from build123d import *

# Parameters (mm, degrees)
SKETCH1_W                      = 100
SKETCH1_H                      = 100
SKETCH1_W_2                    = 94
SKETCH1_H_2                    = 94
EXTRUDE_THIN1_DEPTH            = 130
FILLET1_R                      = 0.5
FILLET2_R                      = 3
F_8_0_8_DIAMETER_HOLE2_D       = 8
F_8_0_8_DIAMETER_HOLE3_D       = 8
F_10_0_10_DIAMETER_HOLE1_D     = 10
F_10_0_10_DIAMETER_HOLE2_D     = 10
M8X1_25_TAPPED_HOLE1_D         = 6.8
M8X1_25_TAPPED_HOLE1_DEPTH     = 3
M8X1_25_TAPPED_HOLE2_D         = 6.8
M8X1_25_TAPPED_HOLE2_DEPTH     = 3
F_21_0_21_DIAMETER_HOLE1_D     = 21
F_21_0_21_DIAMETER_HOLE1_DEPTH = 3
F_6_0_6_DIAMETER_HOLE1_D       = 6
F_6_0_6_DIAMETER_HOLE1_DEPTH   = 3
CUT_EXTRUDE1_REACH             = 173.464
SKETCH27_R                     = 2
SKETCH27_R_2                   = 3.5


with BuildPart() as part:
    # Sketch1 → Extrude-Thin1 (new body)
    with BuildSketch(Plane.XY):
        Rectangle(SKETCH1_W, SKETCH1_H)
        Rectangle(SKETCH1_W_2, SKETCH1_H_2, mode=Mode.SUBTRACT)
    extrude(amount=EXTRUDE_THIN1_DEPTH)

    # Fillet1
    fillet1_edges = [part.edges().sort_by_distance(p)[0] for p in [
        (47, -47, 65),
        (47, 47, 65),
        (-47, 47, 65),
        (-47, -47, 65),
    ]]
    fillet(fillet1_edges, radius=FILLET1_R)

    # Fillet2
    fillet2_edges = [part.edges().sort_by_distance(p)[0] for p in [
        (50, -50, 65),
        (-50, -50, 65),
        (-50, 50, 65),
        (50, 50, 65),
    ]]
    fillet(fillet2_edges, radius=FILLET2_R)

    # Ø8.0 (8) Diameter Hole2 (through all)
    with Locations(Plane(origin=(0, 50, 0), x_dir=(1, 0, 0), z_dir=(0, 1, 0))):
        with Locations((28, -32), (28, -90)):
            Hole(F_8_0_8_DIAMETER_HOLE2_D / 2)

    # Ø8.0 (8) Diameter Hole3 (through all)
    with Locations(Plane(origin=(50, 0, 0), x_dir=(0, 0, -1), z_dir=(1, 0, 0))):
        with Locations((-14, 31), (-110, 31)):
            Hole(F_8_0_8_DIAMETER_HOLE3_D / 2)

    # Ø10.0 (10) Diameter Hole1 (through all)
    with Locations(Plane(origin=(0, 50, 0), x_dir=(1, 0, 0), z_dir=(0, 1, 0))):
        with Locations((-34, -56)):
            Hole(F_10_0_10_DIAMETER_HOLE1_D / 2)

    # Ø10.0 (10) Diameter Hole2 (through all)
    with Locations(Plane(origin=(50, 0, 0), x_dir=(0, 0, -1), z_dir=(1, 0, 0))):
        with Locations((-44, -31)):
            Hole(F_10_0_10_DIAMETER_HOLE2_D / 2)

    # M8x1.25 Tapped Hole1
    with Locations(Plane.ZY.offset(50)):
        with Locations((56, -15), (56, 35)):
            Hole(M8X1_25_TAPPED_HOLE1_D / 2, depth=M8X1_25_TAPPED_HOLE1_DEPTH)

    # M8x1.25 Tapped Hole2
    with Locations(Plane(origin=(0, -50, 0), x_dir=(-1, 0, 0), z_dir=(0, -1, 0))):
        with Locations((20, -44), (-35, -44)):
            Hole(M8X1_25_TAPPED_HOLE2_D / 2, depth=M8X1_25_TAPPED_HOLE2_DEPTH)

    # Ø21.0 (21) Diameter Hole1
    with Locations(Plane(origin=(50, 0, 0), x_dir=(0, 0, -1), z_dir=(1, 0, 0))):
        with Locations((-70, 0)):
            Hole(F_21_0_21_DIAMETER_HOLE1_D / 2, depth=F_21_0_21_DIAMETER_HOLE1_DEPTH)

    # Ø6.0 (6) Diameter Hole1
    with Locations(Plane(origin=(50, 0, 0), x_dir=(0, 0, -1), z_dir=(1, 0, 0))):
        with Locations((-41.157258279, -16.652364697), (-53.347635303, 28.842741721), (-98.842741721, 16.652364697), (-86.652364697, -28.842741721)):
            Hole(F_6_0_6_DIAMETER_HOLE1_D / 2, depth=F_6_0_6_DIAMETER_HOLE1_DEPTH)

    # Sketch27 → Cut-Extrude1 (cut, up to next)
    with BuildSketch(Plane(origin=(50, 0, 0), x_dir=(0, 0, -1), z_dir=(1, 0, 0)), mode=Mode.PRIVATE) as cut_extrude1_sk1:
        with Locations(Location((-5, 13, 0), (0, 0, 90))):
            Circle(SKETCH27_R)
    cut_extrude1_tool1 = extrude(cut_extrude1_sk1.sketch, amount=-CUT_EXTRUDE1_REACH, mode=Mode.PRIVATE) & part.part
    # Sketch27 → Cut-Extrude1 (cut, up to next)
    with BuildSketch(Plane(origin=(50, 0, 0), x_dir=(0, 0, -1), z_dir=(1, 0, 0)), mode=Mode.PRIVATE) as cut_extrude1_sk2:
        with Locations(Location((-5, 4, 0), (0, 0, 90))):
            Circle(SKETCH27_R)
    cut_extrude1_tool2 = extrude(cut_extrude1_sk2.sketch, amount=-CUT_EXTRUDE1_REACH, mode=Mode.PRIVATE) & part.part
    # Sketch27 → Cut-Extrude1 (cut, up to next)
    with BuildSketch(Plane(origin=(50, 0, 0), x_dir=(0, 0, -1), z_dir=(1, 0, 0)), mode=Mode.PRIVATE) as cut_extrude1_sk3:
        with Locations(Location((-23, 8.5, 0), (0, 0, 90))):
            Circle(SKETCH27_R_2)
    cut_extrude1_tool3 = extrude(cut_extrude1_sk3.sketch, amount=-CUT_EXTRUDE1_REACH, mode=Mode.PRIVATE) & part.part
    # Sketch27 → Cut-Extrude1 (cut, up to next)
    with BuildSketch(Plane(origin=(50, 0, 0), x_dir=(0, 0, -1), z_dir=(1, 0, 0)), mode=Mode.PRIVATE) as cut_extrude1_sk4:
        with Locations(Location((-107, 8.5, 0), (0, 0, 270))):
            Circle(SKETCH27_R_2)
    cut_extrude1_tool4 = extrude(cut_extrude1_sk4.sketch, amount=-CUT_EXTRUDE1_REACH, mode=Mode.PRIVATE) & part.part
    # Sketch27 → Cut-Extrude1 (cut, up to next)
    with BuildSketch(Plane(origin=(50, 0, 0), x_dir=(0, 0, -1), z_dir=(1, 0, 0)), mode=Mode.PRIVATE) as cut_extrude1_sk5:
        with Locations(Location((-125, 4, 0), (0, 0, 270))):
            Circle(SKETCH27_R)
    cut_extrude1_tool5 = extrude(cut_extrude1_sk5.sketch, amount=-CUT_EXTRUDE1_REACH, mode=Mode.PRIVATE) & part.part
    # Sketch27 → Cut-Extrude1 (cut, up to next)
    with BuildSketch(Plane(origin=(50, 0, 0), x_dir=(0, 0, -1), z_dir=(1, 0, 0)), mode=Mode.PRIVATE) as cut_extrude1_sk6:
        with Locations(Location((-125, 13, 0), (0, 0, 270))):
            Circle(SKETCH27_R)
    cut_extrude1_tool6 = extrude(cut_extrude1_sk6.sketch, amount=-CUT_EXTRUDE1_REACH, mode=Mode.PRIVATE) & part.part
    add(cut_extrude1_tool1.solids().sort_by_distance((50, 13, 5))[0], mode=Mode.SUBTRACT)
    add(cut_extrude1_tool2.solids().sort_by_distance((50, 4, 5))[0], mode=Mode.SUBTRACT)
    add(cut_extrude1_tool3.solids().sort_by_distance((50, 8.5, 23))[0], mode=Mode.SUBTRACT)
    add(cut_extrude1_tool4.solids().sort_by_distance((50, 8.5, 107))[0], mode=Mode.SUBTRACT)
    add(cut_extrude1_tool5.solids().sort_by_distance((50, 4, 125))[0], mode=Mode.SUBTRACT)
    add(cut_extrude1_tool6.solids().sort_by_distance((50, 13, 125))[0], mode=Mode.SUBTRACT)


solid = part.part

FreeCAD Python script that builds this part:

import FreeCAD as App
import Part
import Sketcher
from FreeCAD import Vector
Q = App.Units.Quantity


def edges_at(feature, points):
    """Names of the edges that pass closest to the given points."""
    edges = feature.Shape.Edges
    near = lambda p: min(range(len(edges)), key=lambda i: edges[i].distToShape(Part.Vertex(*p))[0])
    return sorted({f"Edge{near(p) + 1}" for p in points})

doc = App.newDocument("Part")
body = doc.addObject("PartDesign::Body", "Body")

# Sketch on XY plane
sketch1 = body.newObject("Sketcher::SketchObject", "Sketch")
sketch1.AttachmentSupport = (doc.getObject("XY_Plane"), [""])
sketch1.MapMode = "FlatFace"
sketch1.addGeometry([
    Part.LineSegment(Vector(-50, 50, 0), Vector(-50, -50, 0)),  # 0
    Part.LineSegment(Vector(-50, -50, 0), Vector(50, -50, 0)),  # 1
    Part.LineSegment(Vector(50, -50, 0), Vector(50, 50, 0)),  # 2
    Part.LineSegment(Vector(50, 50, 0), Vector(-50, 50, 0)),  # 3
    Part.LineSegment(Vector(47, -47, 0), Vector(-47, -47, 0)),  # 4
    Part.LineSegment(Vector(-47, -47, 0), Vector(-47, 47, 0)),  # 5
    Part.LineSegment(Vector(-47, 47, 0), Vector(47, 47, 0)),  # 6
    Part.LineSegment(Vector(47, 47, 0), Vector(47, -47, 0)),  # 7
], False)
sketch1.addConstraint([
    Sketcher.Constraint("Coincident", 0, 2, 1, 1),
    Sketcher.Constraint("Coincident", 1, 2, 2, 1),
    Sketcher.Constraint("Coincident", 2, 2, 3, 1),
    Sketcher.Constraint("Coincident", 3, 2, 0, 1),
    Sketcher.Constraint("Coincident", 4, 2, 5, 1),
    Sketcher.Constraint("Coincident", 5, 2, 6, 1),
    Sketcher.Constraint("Coincident", 6, 2, 7, 1),
    Sketcher.Constraint("Coincident", 7, 2, 4, 1),
    Sketcher.Constraint("Vertical", 0),
    Sketcher.Constraint("Horizontal", 1),
    Sketcher.Constraint("Vertical", 2),
    Sketcher.Constraint("Horizontal", 3),
    Sketcher.Constraint("Horizontal", 4),
    Sketcher.Constraint("Vertical", 5),
    Sketcher.Constraint("Horizontal", 6),
    Sketcher.Constraint("Vertical", 7),
    Sketcher.Constraint("Symmetric", 0, 2, 2, 2, -1, 1),
    Sketcher.Constraint("Symmetric", 4, 2, 6, 2, -1, 1),
    Sketcher.Constraint("Equal", 3, 0),
    Sketcher.Constraint("Equal", 6, 5),
    Sketcher.Constraint("DistanceX", 1, 1, 1, 2, Q("100 mm")),
    Sketcher.Constraint("DistanceX", 4, 2, 4, 1, Q("94 mm")),
])
pad1 = body.newObject("PartDesign::Pad", "Pad")
pad1.Profile = sketch1
pad1.Length = 130
doc.recompute()

fillet = body.newObject("PartDesign::Fillet", "Fillet")
fillet.Base = (pad1, edges_at(pad1, [
    (47, -47, 65),
    (47, 47, 65),
    (-47, 47, 65),
    (-47, -47, 65),
]))
fillet.Radius = 0.5
doc.recompute()

fillet2 = body.newObject("PartDesign::Fillet", "Fillet001")
fillet2.Base = (fillet, edges_at(fillet, [
    (50, -50, 65),
    (-50, -50, 65),
    (-50, 50, 65),
    (50, 50, 65),
]))
fillet2.Radius = 3

# Sketch on XZ plane
sketch2 = body.newObject("Sketcher::SketchObject", "Sketch001")
sketch2.AttachmentSupport = (doc.getObject("XZ_Plane"), [""])
sketch2.MapMode = "FlatFace"
sketch2.AttachmentOffset = App.Placement(Vector(0, 0, -50), App.Rotation())
sketch2.addGeometry([
    Part.Circle(Vector(28, 32, 0), Vector(0, 0, 1), 4),
    Part.Circle(Vector(28, 90, 0), Vector(0, 0, 1), 4),
], False)
sketch2.addConstraint([
    Sketcher.Constraint("Equal", 0, 1),
    Sketcher.Constraint("Vertical", 0, 3, 1, 3),
    Sketcher.Constraint("Diameter", 0, Q("8 mm")),
    Sketcher.Constraint("DistanceX", -1, 1, 0, 3, Q("28 mm")),
    Sketcher.Constraint("DistanceY", -1, 1, 0, 3, Q("32 mm")),
    Sketcher.Constraint("DistanceY", -1, 1, 1, 3, Q("90 mm")),
])
doc.recompute()
hole = body.newObject("PartDesign::Hole", "Hole")
hole.Profile = sketch2
hole.ThreadType = "None"
hole.Diameter = 8
hole.DepthType = "ThroughAll"
hole.Reversed = True

# Sketch on YZ plane
sketch3 = body.newObject("Sketcher::SketchObject", "Sketch002")
sketch3.AttachmentSupport = (doc.getObject("YZ_Plane"), [""])
sketch3.MapMode = "FlatFace"
sketch3.AttachmentOffset = App.Placement(Vector(0, 0, 50), App.Rotation())
sketch3.addGeometry([
    Part.Circle(Vector(31, 14, 0), Vector(0, 0, 1), 4),
    Part.Circle(Vector(31, 110, 0), Vector(0, 0, 1), 4),
], False)
sketch3.addConstraint([
    Sketcher.Constraint("Equal", 0, 1),
    Sketcher.Constraint("Vertical", 0, 3, 1, 3),
    Sketcher.Constraint("Diameter", 0, Q("8 mm")),
    Sketcher.Constraint("DistanceX", -1, 1, 0, 3, Q("31 mm")),
    Sketcher.Constraint("DistanceY", -1, 1, 0, 3, Q("14 mm")),
    Sketcher.Constraint("DistanceY", -1, 1, 1, 3, Q("110 mm")),
])
doc.recompute()
hole2 = body.newObject("PartDesign::Hole", "Hole001")
hole2.Profile = sketch3
hole2.ThreadType = "None"
hole2.Diameter = 8
hole2.DepthType = "ThroughAll"

# Sketch on XZ plane
sketch4 = body.newObject("Sketcher::SketchObject", "Sketch003")
sketch4.AttachmentSupport = (doc.getObject("XZ_Plane"), [""])
sketch4.MapMode = "FlatFace"
sketch4.AttachmentOffset = App.Placement(Vector(0, 0, -50), App.Rotation())
sketch4.addGeometry(Part.Circle(Vector(-34, 56, 0), Vector(0, 0, 1), 5), False)
sketch4.addConstraint([
    Sketcher.Constraint("Diameter", 0, Q("10 mm")),
    Sketcher.Constraint("DistanceX", 0, 3, -1, 1, Q("34 mm")),
    Sketcher.Constraint("DistanceY", -1, 1, 0, 3, Q("56 mm")),
])
doc.recompute()
hole3 = body.newObject("PartDesign::Hole", "Hole002")
hole3.Profile = sketch4
hole3.ThreadType = "None"
hole3.Diameter = 10
hole3.DepthType = "ThroughAll"
hole3.Reversed = True

# Sketch on YZ plane
sketch5 = body.newObject("Sketcher::SketchObject", "Sketch004")
sketch5.AttachmentSupport = (doc.getObject("YZ_Plane"), [""])
sketch5.MapMode = "FlatFace"
sketch5.AttachmentOffset = App.Placement(Vector(0, 0, 50), App.Rotation())
sketch5.addGeometry(Part.Circle(Vector(-31, 44, 0), Vector(0, 0, 1), 5), False)
sketch5.addConstraint([
    Sketcher.Constraint("Diameter", 0, Q("10 mm")),
    Sketcher.Constraint("DistanceX", 0, 3, -1, 1, Q("31 mm")),
    Sketcher.Constraint("DistanceY", -1, 1, 0, 3, Q("44 mm")),
])
doc.recompute()
hole4 = body.newObject("PartDesign::Hole", "Hole003")
hole4.Profile = sketch5
hole4.ThreadType = "None"
hole4.Diameter = 10
hole4.DepthType = "ThroughAll"

# Sketch on YZ plane
sketch6 = body.newObject("Sketcher::SketchObject", "Sketch005")
sketch6.AttachmentSupport = (doc.getObject("YZ_Plane"), [""])
sketch6.MapMode = "FlatFace"
sketch6.AttachmentOffset = App.Placement(Vector(0, 0, -50), App.Rotation())
sketch6.addGeometry([
    Part.Circle(Vector(-15, 56, 0), Vector(0, 0, 1), 3.4),
    Part.Circle(Vector(35, 56, 0), Vector(0, 0, 1), 3.4),
], False)
sketch6.addConstraint([
    Sketcher.Constraint("Equal", 0, 1),
    Sketcher.Constraint("Horizontal", 0, 3, 1, 3),
    Sketcher.Constraint("Diameter", 0, Q("6.8 mm")),
    Sketcher.Constraint("DistanceX", 0, 3, -1, 1, Q("15 mm")),
    Sketcher.Constraint("DistanceY", -1, 1, 0, 3, Q("56 mm")),
    Sketcher.Constraint("DistanceX", -1, 1, 1, 3, Q("35 mm")),
])
doc.recompute()
hole5 = body.newObject("PartDesign::Hole", "Hole004")
hole5.Profile = sketch6
hole5.ThreadType = "None"
hole5.Diameter = 6.8
hole5.DepthType = "Dimension"
hole5.Depth = 3
hole5.DrillPoint = "Flat"
hole5.Reversed = True

# Sketch on XZ plane
sketch7 = body.newObject("Sketcher::SketchObject", "Sketch006")
sketch7.AttachmentSupport = (doc.getObject("XZ_Plane"), [""])
sketch7.MapMode = "FlatFace"
sketch7.AttachmentOffset = App.Placement(Vector(0, 0, 50), App.Rotation())
sketch7.addGeometry([
    Part.Circle(Vector(-20, 44, 0), Vector(0, 0, 1), 3.4),
    Part.Circle(Vector(35, 44, 0), Vector(0, 0, 1), 3.4),
], False)
sketch7.addConstraint([
    Sketcher.Constraint("Equal", 0, 1),
    Sketcher.Constraint("Horizontal", 0, 3, 1, 3),
    Sketcher.Constraint("Diameter", 0, Q("6.8 mm")),
    Sketcher.Constraint("DistanceX", 0, 3, -1, 1, Q("20 mm")),
    Sketcher.Constraint("DistanceY", -1, 1, 0, 3, Q("44 mm")),
    Sketcher.Constraint("DistanceX", -1, 1, 1, 3, Q("35 mm")),
])
doc.recompute()
hole6 = body.newObject("PartDesign::Hole", "Hole005")
hole6.Profile = sketch7
hole6.ThreadType = "None"
hole6.Diameter = 6.8
hole6.DepthType = "Dimension"
hole6.Depth = 3
hole6.DrillPoint = "Flat"

# Sketch on YZ plane
sketch8 = body.newObject("Sketcher::SketchObject", "Sketch007")
sketch8.AttachmentSupport = (doc.getObject("YZ_Plane"), [""])
sketch8.MapMode = "FlatFace"
sketch8.AttachmentOffset = App.Placement(Vector(0, 0, 50), App.Rotation())
sketch8.addGeometry(Part.Circle(Vector(0, 70, 0), Vector(0, 0, 1), 10), False)
sketch8.addConstraint([
    Sketcher.Constraint("PointOnObject", 0, 3, -2),
    Sketcher.Constraint("Diameter", 0, Q("21 mm")),
    Sketcher.Constraint("DistanceY", -1, 1, 0, 3, Q("70 mm")),
])
doc.recompute()
hole7 = body.newObject("PartDesign::Hole", "Hole006")
hole7.Profile = sketch8
hole7.ThreadType = "None"
hole7.Diameter = 21
hole7.DepthType = "Dimension"
hole7.Depth = 3
hole7.DrillPoint = "Flat"

# Sketch on YZ plane
sketch9 = body.newObject("Sketcher::SketchObject", "Sketch008")
sketch9.AttachmentSupport = (doc.getObject("YZ_Plane"), [""])
sketch9.MapMode = "FlatFace"
sketch9.AttachmentOffset = App.Placement(Vector(0, 0, 50), App.Rotation())
sketch9.addGeometry([
    Part.Circle(Vector(-16.7, 41.2, 0), Vector(0, 0, 1), 3),
    Part.Circle(Vector(28.8, 53.3, 0), Vector(0, 0, 1), 3),
    Part.Circle(Vector(16.7, 98.8, 0), Vector(0, 0, 1), 3),
    Part.Circle(Vector(-28.8, 86.7, 0), Vector(0, 0, 1), 3),
], False)
sketch9.addConstraint([
    Sketcher.Constraint("Equal", 0, 1),
    Sketcher.Constraint("Equal", 1, 2),
    Sketcher.Constraint("Equal", 2, 3),
    Sketcher.Constraint("Diameter", 0, Q("6 mm")),
    Sketcher.Constraint("DistanceY", -1, 1, 0, 3, Q("41.157258 mm")),
    Sketcher.Constraint("DistanceX", -1, 1, 1, 3, Q("28.842742 mm")),
    Sketcher.Constraint("DistanceY", -1, 1, 2, 3, Q("98.842742 mm")),
    Sketcher.Constraint("DistanceX", 3, 3, -1, 1, Q("28.842742 mm")),
    Sketcher.Constraint("DistanceX", 0, 3, 2, 3, Q("33.304729 mm")),
    Sketcher.Constraint("DistanceY", 1, 3, 3, 3, Q("33.304729 mm")),
    Sketcher.Constraint("DistanceX", 0, 3, -1, 1, Q("16.652365 mm")),
    Sketcher.Constraint("DistanceY", -1, 1, 1, 3, Q("53.347635 mm")),
])
doc.recompute()
hole8 = body.newObject("PartDesign::Hole", "Hole007")
hole8.Profile = sketch9
hole8.ThreadType = "None"
hole8.Diameter = 6
hole8.DepthType = "Dimension"
hole8.Depth = 3
hole8.DrillPoint = "Flat"

# Sketch on YZ plane
sketch10 = body.newObject("Sketcher::SketchObject", "Sketch009")
sketch10.AttachmentSupport = (doc.getObject("YZ_Plane"), [""])
sketch10.MapMode = "FlatFace"
sketch10.AttachmentOffset = App.Placement(Vector(0, 0, 50), App.Rotation())
sketch10.addGeometry(Part.Circle(Vector(13, 5, 0), Vector(0, 0, 1), 2), False)
sketch10.addConstraint([
    Sketcher.Constraint("Diameter", 0, Q("4 mm")),
    Sketcher.Constraint("DistanceX", -1, 1, 0, 3, Q("13 mm")),
    Sketcher.Constraint("DistanceY", -1, 1, 0, 3, Q("5 mm")),
])
pocket1 = body.newObject("PartDesign::Pocket", "Pocket")
pocket1.Profile = sketch10
pocket1.Type = "UpToFirst"

# Sketch on YZ plane
sketch11 = body.newObject("Sketcher::SketchObject", "Sketch010")
sketch11.AttachmentSupport = (doc.getObject("YZ_Plane"), [""])
sketch11.MapMode = "FlatFace"
sketch11.AttachmentOffset = App.Placement(Vector(0, 0, 50), App.Rotation())
sketch11.addGeometry(Part.Circle(Vector(4, 5, 0), Vector(0, 0, 1), 2), False)
sketch11.addConstraint([
    Sketcher.Constraint("Diameter", 0, Q("4 mm")),
    Sketcher.Constraint("DistanceX", -1, 1, 0, 3, Q("4 mm")),
    Sketcher.Constraint("DistanceY", -1, 1, 0, 3, Q("5 mm")),
])
pocket2 = body.newObject("PartDesign::Pocket", "Pocket001")
pocket2.Profile = sketch11
pocket2.Type = "UpToFirst"

# Sketch on YZ plane
sketch12 = body.newObject("Sketcher::SketchObject", "Sketch011")
sketch12.AttachmentSupport = (doc.getObject("YZ_Plane"), [""])
sketch12.MapMode = "FlatFace"
sketch12.AttachmentOffset = App.Placement(Vector(0, 0, 50), App.Rotation())
sketch12.addGeometry(Part.Circle(Vector(8.5, 23, 0), Vector(0, 0, 1), 3.5), False)
sketch12.addConstraint([
    Sketcher.Constraint("Diameter", 0, Q("7 mm")),
    Sketcher.Constraint("DistanceY", -1, 1, 0, 3, Q("23 mm")),
    Sketcher.Constraint("DistanceX", -1, 1, 0, 3, Q("8.5 mm")),
])
pocket3 = body.newObject("PartDesign::Pocket", "Pocket002")
pocket3.Profile = sketch12
pocket3.Type = "UpToFirst"

# Sketch on YZ plane
sketch13 = body.newObject("Sketcher::SketchObject", "Sketch012")
sketch13.AttachmentSupport = (doc.getObject("YZ_Plane"), [""])
sketch13.MapMode = "FlatFace"
sketch13.AttachmentOffset = App.Placement(Vector(0, 0, 50), App.Rotation())
sketch13.addGeometry(Part.Circle(Vector(8.5, 107, 0), Vector(0, 0, 1), 3.5), False)
sketch13.addConstraint([
    Sketcher.Constraint("Diameter", 0, Q("7 mm")),
    Sketcher.Constraint("DistanceY", -1, 1, 0, 3, Q("107 mm")),
    Sketcher.Constraint("DistanceX", -1, 1, 0, 3, Q("8.5 mm")),
])
pocket4 = body.newObject("PartDesign::Pocket", "Pocket003")
pocket4.Profile = sketch13
pocket4.Type = "UpToFirst"

# Sketch on YZ plane
sketch14 = body.newObject("Sketcher::SketchObject", "Sketch013")
sketch14.AttachmentSupport = (doc.getObject("YZ_Plane"), [""])
sketch14.MapMode = "FlatFace"
sketch14.AttachmentOffset = App.Placement(Vector(0, 0, 50), App.Rotation())
sketch14.addGeometry(Part.Circle(Vector(4, 125, 0), Vector(0, 0, 1), 2), False)
sketch14.addConstraint([
    Sketcher.Constraint("Diameter", 0, Q("4 mm")),
    Sketcher.Constraint("DistanceX", -1, 1, 0, 3, Q("4 mm")),
    Sketcher.Constraint("DistanceY", -1, 1, 0, 3, Q("125 mm")),
])
pocket5 = body.newObject("PartDesign::Pocket", "Pocket004")
pocket5.Profile = sketch14
pocket5.Type = "UpToFirst"

# Sketch on YZ plane
sketch15 = body.newObject("Sketcher::SketchObject", "Sketch014")
sketch15.AttachmentSupport = (doc.getObject("YZ_Plane"), [""])
sketch15.MapMode = "FlatFace"
sketch15.AttachmentOffset = App.Placement(Vector(0, 0, 50), App.Rotation())
sketch15.addGeometry(Part.Circle(Vector(13, 125, 0), Vector(0, 0, 1), 2), False)
sketch15.addConstraint([
    Sketcher.Constraint("Diameter", 0, Q("4 mm")),
    Sketcher.Constraint("DistanceX", -1, 1, 0, 3, Q("13 mm")),
    Sketcher.Constraint("DistanceY", -1, 1, 0, 3, Q("125 mm")),
])
pocket6 = body.newObject("PartDesign::Pocket", "Pocket005")
pocket6.Profile = sketch15
pocket6.Type = "UpToFirst"

doc.recompute()
